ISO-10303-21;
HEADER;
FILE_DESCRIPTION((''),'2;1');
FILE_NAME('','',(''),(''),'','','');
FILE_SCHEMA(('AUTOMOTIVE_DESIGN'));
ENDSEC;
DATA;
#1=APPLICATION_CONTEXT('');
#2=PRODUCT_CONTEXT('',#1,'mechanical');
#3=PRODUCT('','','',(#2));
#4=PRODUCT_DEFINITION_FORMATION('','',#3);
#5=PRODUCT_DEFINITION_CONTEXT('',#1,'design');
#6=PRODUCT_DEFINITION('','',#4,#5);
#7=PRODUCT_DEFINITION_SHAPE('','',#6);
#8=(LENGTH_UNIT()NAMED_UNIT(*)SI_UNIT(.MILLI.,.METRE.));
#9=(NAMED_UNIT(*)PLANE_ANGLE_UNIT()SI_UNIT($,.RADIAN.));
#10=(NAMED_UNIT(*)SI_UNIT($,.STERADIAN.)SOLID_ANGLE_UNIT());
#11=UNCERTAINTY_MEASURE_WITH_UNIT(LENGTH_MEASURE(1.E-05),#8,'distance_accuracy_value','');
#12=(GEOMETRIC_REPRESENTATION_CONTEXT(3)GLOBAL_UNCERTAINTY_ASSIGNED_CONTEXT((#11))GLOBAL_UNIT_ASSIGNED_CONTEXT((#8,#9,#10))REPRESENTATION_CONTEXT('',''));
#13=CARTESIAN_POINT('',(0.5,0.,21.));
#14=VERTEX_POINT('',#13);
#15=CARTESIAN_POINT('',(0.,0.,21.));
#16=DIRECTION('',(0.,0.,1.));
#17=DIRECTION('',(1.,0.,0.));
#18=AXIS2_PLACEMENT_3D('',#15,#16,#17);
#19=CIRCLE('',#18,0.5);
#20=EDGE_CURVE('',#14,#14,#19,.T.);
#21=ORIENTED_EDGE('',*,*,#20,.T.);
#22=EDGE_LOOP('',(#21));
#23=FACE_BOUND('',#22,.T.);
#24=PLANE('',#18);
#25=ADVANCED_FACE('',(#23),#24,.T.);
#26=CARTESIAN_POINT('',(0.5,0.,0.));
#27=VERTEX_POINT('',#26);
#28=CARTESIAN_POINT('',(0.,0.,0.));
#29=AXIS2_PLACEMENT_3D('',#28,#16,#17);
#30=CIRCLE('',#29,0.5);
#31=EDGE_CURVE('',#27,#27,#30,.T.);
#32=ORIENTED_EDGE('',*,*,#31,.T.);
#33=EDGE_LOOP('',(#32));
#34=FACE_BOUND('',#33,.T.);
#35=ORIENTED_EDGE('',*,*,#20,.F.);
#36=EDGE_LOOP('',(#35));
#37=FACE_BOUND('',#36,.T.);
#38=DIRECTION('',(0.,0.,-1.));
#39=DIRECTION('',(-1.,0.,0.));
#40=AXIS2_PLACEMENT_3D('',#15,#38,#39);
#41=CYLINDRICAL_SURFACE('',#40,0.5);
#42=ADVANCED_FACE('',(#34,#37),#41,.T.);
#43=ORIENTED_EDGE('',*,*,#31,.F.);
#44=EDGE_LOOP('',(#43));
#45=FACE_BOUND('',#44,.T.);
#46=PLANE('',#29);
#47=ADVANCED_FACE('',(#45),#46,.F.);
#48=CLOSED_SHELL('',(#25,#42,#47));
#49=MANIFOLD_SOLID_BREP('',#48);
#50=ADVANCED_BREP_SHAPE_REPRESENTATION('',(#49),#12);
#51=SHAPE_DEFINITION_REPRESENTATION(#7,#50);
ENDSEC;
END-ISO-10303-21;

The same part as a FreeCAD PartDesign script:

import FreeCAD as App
import Part
import Sketcher

doc = App.newDocument("Part")
params = doc.addObject("Spreadsheet::Sheet", "Params")
for row, (alias, value) in enumerate([
    ("sketch1_diameter", "1 mm"),
    ("pad1_length", "21 mm"),
], start=1):
    params.set(f"A{row}", alias)
    params.set(f"B{row}", "=" + value)
    params.setAlias(f"B{row}", alias)

body = doc.addObject("PartDesign::Body", "Body")

# Sketch on XY plane
sketch1 = doc.addObject("Sketcher::SketchObject", "Sketch")
body.addObject(sketch1)
sketch1.AttachmentSupport = (doc.XY_Plane, [""])
sketch1.MapMode = "FlatFace"
sketch1.addGeometry(Part.Circle(App.Vector(0, 0, 0), App.Vector(0, 0, 1), 0.5), False)
sketch1.addConstraint([
    Sketcher.Constraint("Coincident", 0, 3, -1, 1),
    Sketcher.Constraint("Diameter", 0, 1.0),
])
sketch1.setExpression("Constraints[1]", "Params.sketch1_diameter")
pad1 = doc.addObject("PartDesign::Pad", "Pad")
body.addObject(pad1)
pad1.Profile = sketch1
pad1.setExpression("Length", "Params.pad1_length")

doc.recompute()
